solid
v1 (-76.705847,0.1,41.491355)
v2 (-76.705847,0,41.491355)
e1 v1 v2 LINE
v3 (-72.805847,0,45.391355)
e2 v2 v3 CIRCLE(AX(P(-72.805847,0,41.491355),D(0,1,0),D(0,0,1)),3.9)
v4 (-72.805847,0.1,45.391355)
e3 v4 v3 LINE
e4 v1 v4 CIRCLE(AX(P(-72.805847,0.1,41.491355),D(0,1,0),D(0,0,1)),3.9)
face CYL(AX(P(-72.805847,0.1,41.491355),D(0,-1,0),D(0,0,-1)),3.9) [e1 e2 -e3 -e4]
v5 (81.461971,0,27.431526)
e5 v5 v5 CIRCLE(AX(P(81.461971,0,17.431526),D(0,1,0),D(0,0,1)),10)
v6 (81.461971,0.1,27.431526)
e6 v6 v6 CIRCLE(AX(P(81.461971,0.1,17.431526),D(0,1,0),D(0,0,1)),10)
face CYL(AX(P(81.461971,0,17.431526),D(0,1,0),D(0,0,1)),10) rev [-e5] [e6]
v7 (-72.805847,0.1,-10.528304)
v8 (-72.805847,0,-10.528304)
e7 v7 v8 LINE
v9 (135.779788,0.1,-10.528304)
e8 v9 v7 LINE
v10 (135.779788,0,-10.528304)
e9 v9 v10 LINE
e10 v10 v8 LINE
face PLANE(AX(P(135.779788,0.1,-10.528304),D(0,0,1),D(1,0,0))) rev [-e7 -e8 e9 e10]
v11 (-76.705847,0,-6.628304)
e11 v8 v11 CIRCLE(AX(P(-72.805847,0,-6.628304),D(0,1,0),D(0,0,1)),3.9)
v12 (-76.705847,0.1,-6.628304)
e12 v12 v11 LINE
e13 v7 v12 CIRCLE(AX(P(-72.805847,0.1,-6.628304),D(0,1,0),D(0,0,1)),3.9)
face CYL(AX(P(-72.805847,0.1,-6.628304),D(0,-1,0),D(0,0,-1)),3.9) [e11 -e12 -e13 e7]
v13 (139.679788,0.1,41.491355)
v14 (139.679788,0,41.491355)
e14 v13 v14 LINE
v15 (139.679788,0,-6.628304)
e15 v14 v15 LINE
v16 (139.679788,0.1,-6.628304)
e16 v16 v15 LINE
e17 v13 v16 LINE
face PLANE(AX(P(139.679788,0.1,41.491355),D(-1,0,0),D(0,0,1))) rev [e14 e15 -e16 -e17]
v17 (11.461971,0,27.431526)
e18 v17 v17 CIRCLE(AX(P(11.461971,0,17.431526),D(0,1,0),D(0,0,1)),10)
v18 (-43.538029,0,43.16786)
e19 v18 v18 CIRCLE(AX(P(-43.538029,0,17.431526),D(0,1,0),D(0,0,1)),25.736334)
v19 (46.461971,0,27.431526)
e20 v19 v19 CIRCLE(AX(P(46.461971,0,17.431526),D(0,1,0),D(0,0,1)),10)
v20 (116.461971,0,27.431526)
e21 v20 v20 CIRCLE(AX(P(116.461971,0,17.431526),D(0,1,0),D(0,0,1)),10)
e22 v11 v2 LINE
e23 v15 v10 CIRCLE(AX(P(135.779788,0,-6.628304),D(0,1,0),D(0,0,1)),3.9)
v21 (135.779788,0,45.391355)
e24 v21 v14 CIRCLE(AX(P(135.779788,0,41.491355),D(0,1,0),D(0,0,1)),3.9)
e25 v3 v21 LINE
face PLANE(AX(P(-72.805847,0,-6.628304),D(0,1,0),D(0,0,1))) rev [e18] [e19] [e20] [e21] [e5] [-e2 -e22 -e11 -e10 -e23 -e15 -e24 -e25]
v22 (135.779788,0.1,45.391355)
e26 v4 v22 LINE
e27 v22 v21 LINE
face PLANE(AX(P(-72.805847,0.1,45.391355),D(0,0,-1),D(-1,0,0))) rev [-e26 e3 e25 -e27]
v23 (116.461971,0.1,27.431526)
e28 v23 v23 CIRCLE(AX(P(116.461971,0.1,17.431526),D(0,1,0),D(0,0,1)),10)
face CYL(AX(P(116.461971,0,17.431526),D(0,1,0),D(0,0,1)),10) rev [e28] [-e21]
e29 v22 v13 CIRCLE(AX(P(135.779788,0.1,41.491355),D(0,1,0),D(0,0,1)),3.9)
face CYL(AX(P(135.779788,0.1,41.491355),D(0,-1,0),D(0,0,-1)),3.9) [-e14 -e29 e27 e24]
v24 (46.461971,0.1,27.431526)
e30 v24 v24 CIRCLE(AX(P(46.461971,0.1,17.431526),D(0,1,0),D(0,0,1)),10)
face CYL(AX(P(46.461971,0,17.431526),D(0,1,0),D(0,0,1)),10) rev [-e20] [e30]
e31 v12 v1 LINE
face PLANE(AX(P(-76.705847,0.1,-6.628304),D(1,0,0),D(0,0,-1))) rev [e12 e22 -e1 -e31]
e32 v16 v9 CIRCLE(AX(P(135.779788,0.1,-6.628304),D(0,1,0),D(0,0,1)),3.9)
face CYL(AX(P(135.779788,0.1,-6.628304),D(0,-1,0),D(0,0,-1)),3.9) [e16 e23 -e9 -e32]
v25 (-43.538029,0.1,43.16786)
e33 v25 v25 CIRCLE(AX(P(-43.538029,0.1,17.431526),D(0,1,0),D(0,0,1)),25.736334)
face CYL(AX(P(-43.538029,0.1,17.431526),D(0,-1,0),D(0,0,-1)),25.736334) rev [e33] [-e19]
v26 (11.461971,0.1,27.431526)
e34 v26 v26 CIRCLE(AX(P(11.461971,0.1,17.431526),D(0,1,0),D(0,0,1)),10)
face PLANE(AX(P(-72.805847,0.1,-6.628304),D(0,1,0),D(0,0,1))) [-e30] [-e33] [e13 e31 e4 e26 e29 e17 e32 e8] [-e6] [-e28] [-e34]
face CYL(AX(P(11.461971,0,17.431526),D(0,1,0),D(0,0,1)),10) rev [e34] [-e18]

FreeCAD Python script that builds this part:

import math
import FreeCAD as App
import Part
import Sketcher
from FreeCAD import Vector
Q = App.Units.Quantity

doc = App.newDocument("Part")
body = doc.addObject("PartDesign::Body", "Body")

sketch1 = body.newObject("Sketcher::SketchObject", "Sketch")
sketch1.AttachmentSupport = (doc.getObject("XZ_Plane"), [""])
sketch1.MapMode = "FlatFace"
sketch1.addGeometry(Part.LineSegment(Vector(-76.7, -6.6, 0), Vector(-76.7, 41.5, 0)), False)
sketch1.addGeometry(Part.ArcOfCircle(Part.Circle(Vector(-72.8, 41.5, 0), Vector(0, 0, 1), 3.9), math.radians(90), math.radians(180)), False)
sketch1.addGeometry(Part.LineSegment(Vector(-72.8, 45.4, 0), Vector(135.8, 45.4, 0)), False)
sketch1.addGeometry(Part.ArcOfCircle(Part.Circle(Vector(135.8, 41.5, 0), Vector(0, 0, 1), 3.9), math.radians(0), math.radians(90)), False)
sketch1.addGeometry(Part.LineSegment(Vector(139.7, 41.5, 0), Vector(139.7, -6.6, 0)), False)
sketch1.addGeometry(Part.ArcOfCircle(Part.Circle(Vector(135.8, -6.6, 0), Vector(0, 0, 1), 3.9), math.radians(-90), math.radians(0)), False)
sketch1.addGeometry(Part.LineSegment(Vector(135.8, -10.5, 0), Vector(-72.8, -10.5, 0)), False)
sketch1.addGeometry(Part.ArcOfCircle(Part.Circle(Vector(-72.8, -6.6, 0), Vector(0, 0, 1), 3.9), math.radians(180), math.radians(270)), False)
sketch1.addGeometry(Part.Circle(Vector(-43.5, 17.4, 0), Vector(0, 0, 1), 25.7), False)
sketch1.addConstraint(Sketcher.Constraint("Tangent", 0, 2, 1, 2))
sketch1.addConstraint(Sketcher.Constraint("Tangent", 1, 1, 2, 1))
sketch1.addConstraint(Sketcher.Constraint("Tangent", 2, 2, 3, 2))
sketch1.addConstraint(Sketcher.Constraint("Tangent", 3, 1, 4, 1))
sketch1.addConstraint(Sketcher.Constraint("Tangent", 4, 2, 5, 2))
sketch1.addConstraint(Sketcher.Constraint("Tangent", 5, 1, 6, 1))
sketch1.addConstraint(Sketcher.Constraint("Tangent", 6, 2, 7, 2))
sketch1.addConstraint(Sketcher.Constraint("Tangent", 7, 1, 0, 1))
sketch1.addConstraint(Sketcher.Constraint("Vertical", 0))
sketch1.addConstraint(Sketcher.Constraint("Horizontal", 2))
sketch1.addConstraint(Sketcher.Constraint("Vertical", 4))
sketch1.addConstraint(Sketcher.Constraint("Horizontal", 6))
sketch1.addConstraint(Sketcher.Constraint("Equal", 1, 3))
sketch1.addConstraint(Sketcher.Constraint("Equal", 3, 5))
sketch1.addConstraint(Sketcher.Constraint("Equal", 5, 7))
sketch1.addConstraint(Sketcher.Constraint("Radius", 1, Q("3.9 mm")))
sketch1.addConstraint(Sketcher.Constraint("Diameter", 8, Q("51.472668 mm")))
sketch1.addConstraint(Sketcher.Constraint("DistanceY", 0, 1, 0, 2, Q("48.119659 mm")))
sketch1.addConstraint(Sketcher.Constraint("DistanceX", 2, 1, 2, 2, Q("208.585635 mm")))
sketch1.addConstraint(Sketcher.Constraint("DistanceX", -1, 1, 3, 3, Q("135.779788 mm")))
sketch1.addConstraint(Sketcher.Constraint("DistanceX", 8, 3, -1, 1, Q("43.538029 mm")))
sketch1.addConstraint(Sketcher.Constraint("DistanceY", 8, 3, 1, 3, Q("24.05983 mm")))
sketch1.addConstraint(Sketcher.Constraint("DistanceY", -1, 1, 1, 3, Q("41.491355 mm")))
pad1 = body.newObject("PartDesign::Pad", "Pad")
pad1.Profile = sketch1
pad1.Length = 0.1
pad1.Reversed = True

sketch2 = body.newObject("Sketcher::SketchObject", "Sketch001")
sketch2.AttachmentSupport = (doc.getObject("XZ_Plane"), [""])
sketch2.MapMode = "FlatFace"
sketch2.AttachmentOffset = App.Placement(Vector(0, 0, -0.1), App.Rotation())
sketch2.addGeometry(Part.Circle(Vector(11, 17, 0), Vector(0, 0, 1), 10), False)
sketch2.addGeometry(Part.Circle(Vector(46, 17, 0), Vector(0, 0, 1), 10), False)
sketch2.addGeometry(Part.Circle(Vector(81, 17, 0), Vector(0, 0, 1), 10), False)
sketch2.addGeometry(Part.Circle(Vector(116, 17, 0), Vector(0, 0, 1), 10), False)
sketch2.addConstraint(Sketcher.Constraint("Equal", 0, 1))
sketch2.addConstraint(Sketcher.Constraint("Equal", 1, 2))
sketch2.addConstraint(Sketcher.Constraint("Equal", 2, 3))
sketch2.addConstraint(Sketcher.Constraint("Horizontal", 0, 3, 1, 3))
sketch2.addConstraint(Sketcher.Constraint("Horizontal", 1, 3, 2, 3))
sketch2.addConstraint(Sketcher.Constraint("Horizontal", 2, 3, 3, 3))
sketch2.addConstraint(Sketcher.Constraint("Diameter", 0, Q("20 mm")))
sketch2.addConstraint(Sketcher.Constraint("DistanceX", 0, 3, 1, 3, Q("35 mm")))
sketch2.addConstraint(Sketcher.Constraint("DistanceX", 1, 3, 2, 3, Q("35 mm")))
sketch2.addConstraint(Sketcher.Constraint("DistanceX", 2, 3, 3, 3, Q("35 mm")))
sketch2.addConstraint(Sketcher.Constraint("DistanceX", -1, 1, 0, 3, Q("11.461971 mm")))
sketch2.addConstraint(Sketcher.Constraint("DistanceY", -1, 1, 0, 3, Q("17.431526 mm")))
pocket1 = body.newObject("PartDesign::Pocket", "Pocket")
pocket1.Profile = sketch2
pocket1.Type = "ThroughAll"
pocket1.Midplane = True

doc.recompute()
